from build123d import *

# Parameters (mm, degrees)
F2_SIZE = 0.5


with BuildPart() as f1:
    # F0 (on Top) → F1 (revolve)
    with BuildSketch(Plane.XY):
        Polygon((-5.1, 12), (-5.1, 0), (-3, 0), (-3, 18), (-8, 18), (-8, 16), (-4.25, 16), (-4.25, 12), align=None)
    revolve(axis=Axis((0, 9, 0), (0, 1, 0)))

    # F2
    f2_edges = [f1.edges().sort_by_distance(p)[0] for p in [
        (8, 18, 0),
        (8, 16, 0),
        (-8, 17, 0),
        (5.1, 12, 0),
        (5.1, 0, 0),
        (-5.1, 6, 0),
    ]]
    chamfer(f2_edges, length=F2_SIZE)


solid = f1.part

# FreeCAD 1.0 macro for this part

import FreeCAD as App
import Part
import Sketcher

V = App.Vector
Q = App.Units.Quantity


def edges_at(feature, points):
    """Names of the edges that pass closest to the given points."""
    edges = feature.Shape.Edges
    near = lambda p: min(range(len(edges)), key=lambda i: edges[i].distToShape(Part.Vertex(*p))[0])
    return sorted({f"Edge{near(p) + 1}" for p in points})


def add_polygon(sketch, points):
    """Adds a closed chain of lines whose ends are joined by coincident constraints."""
    first, n = sketch.GeometryCount, len(points)
    for a, b in zip(points, points[1:] + points[:1]):
        sketch.addGeometry(Part.LineSegment(App.Vector(*a, 0), App.Vector(*b, 0)), False)
    for i in range(n):
        sketch.addConstraint(Sketcher.Constraint("Coincident", first + i, 2, first + (i + 1) % n, 1))

doc = App.newDocument("Part")
body = doc.addObject("PartDesign::Body", "Body")

# Sketch on XY plane
sketch1 = body.newObject("Sketcher::SketchObject", "Sketch")
sketch1.AttachmentSupport = (doc.getObject("XY_Plane"), [""])
sketch1.MapMode = "FlatFace"
add_polygon(sketch1, [(-5.1, 12), (-5.1, 0), (-3, 0), (-3, 18), (-8, 18), (-8, 16), (-4.25, 16), (-4.25, 12)])  # lines 0-7
sketch1.addConstraint([
    Sketcher.Constraint("Vertical", 0),
    Sketcher.Constraint("Horizontal", 1),
    Sketcher.Constraint("Vertical", 2),
    Sketcher.Constraint("Horizontal", 3),
    Sketcher.Constraint("Vertical", 4),
    Sketcher.Constraint("Horizontal", 5),
    Sketcher.Constraint("Vertical", 6),
    Sketcher.Constraint("Horizontal", 7),
    Sketcher.Constraint("PointOnObject", 0, 2, -1),
    Sketcher.Constraint("DistanceX", 3, 2, 3, 1, Q("5 mm")),
    Sketcher.Constraint("DistanceY", 0, 2, 0, 1, Q("12 mm")),
    Sketcher.Constraint("DistanceY", 2, 1, 2, 2, Q("18 mm")),
    Sketcher.Constraint("DistanceY", 4, 2, 4, 1, Q("2 mm")),
    Sketcher.Constraint("DistanceX", 1, 1, 1, 2, Q("2.1 mm")),
    Sketcher.Constraint("DistanceX", 1, 2, -1, 1, Q("3 mm")),
    Sketcher.Constraint("DistanceX", 5, 1, 5, 2, Q("3.75 mm")),
])
revolution = body.newObject("PartDesign::Revolution", "Revolution")
revolution.Profile = sketch1
revolution.ReferenceAxis = (sketch1, ["V_Axis"])
revolution.Angle = 360
doc.recompute()

chamfer = body.newObject("PartDesign::Chamfer", "Chamfer")
chamfer.Base = (revolution, edges_at(revolution, [
    (8, 18, 0),
    (8, 16, 0),
    (-8, 17, 0),
    (5.1, 12, 0),
    (5.1, 0, 0),
    (-5.1, 6, 0),
]))
chamfer.Size = 0.5

doc.recompute()
